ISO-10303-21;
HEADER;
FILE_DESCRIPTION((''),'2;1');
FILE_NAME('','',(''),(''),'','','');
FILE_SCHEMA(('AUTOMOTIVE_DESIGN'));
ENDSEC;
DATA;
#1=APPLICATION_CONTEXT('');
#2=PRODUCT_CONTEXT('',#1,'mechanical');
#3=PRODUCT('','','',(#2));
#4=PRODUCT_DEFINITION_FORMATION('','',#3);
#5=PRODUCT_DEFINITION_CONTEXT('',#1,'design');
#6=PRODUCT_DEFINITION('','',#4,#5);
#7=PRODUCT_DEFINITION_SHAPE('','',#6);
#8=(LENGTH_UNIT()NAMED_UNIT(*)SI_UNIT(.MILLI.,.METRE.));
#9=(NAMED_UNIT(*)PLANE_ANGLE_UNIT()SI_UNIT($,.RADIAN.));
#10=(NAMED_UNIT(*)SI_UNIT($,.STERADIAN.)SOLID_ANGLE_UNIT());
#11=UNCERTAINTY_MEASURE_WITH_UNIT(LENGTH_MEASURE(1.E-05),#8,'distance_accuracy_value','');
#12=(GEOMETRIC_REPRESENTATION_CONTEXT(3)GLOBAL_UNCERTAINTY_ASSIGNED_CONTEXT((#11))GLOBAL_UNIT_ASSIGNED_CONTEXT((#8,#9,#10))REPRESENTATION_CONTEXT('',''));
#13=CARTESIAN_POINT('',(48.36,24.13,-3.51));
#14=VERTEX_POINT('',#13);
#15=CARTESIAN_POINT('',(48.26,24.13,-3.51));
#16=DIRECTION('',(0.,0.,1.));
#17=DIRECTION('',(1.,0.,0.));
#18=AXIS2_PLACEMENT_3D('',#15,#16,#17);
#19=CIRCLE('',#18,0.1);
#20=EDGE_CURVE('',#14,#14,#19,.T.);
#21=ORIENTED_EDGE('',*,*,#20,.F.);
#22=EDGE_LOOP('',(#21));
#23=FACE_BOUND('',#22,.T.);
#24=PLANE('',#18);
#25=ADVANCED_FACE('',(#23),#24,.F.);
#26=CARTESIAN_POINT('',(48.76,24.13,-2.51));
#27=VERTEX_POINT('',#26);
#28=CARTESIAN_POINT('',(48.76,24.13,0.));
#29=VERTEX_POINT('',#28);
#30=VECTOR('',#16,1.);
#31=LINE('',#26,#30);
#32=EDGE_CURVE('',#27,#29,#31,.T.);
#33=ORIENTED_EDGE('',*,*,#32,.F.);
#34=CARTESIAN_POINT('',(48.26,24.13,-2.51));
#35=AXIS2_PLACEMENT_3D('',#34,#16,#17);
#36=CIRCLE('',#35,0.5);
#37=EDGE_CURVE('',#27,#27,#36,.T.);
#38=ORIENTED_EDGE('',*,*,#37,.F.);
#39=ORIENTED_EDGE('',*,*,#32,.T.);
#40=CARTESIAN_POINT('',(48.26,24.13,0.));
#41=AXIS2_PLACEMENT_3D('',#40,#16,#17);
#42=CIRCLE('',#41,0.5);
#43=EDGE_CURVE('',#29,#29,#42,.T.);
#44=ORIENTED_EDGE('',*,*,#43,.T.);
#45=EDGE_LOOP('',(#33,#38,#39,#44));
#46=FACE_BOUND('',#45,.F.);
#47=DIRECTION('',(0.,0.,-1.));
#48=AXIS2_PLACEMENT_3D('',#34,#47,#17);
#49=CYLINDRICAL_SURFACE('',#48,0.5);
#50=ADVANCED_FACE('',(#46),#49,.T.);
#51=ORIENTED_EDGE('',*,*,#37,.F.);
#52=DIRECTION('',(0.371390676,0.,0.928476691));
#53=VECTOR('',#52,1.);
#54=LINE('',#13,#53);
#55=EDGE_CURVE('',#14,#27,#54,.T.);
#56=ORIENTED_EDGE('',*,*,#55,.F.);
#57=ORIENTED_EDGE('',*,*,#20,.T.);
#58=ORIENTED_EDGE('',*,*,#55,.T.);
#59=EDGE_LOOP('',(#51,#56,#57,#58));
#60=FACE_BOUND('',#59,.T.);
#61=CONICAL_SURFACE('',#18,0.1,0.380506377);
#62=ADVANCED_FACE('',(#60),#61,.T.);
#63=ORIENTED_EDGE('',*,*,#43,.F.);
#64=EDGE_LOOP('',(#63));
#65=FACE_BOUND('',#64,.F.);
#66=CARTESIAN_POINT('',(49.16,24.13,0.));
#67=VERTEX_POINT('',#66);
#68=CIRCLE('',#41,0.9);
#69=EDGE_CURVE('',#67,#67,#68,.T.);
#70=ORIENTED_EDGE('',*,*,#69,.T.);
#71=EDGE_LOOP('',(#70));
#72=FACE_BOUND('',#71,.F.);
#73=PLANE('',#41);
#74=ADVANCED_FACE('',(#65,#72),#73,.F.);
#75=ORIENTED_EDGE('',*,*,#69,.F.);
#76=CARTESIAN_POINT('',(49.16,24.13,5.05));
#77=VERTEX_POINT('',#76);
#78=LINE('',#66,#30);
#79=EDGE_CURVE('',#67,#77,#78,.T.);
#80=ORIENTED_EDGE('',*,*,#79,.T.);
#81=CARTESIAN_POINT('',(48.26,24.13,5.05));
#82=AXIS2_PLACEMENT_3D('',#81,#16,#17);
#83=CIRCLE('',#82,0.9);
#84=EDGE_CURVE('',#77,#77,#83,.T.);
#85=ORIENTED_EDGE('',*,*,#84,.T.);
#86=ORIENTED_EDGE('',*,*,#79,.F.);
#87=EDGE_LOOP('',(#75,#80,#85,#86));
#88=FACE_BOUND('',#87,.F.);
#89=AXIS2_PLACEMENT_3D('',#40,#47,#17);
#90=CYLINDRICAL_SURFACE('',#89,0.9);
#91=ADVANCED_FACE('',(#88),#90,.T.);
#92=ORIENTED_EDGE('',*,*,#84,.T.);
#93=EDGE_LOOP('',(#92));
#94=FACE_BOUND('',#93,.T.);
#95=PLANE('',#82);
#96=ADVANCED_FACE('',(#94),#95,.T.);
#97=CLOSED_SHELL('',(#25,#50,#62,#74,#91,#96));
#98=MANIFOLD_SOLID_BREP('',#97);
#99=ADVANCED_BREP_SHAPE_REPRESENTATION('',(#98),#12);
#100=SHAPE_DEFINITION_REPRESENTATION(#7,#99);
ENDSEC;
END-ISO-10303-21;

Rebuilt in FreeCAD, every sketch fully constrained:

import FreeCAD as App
import Part
import Sketcher
from FreeCAD import Vector

doc = App.newDocument("Part")
body = doc.addObject("PartDesign::Body", "Body")

sketch1 = body.newObject("Sketcher::SketchObject", "Sketch")
sketch1.AttachmentSupport = (doc.getObject("XY_Plane"), [""])
sketch1.MapMode = "FlatFace"
sketch1.AttachmentOffset = App.Placement(Vector(0, 0, -2.51), App.Rotation())
sketch1.addGeometry(Part.Circle(Vector(2.5, 0, 0), Vector(0, 0, 1), 0.5), False)
sketch1.addConstraint(Sketcher.Constraint("PointOnObject", 0, 3, -1))
sketch1.addConstraint(Sketcher.Constraint("Diameter", 0, 1.0))
sketch1.addConstraint(Sketcher.Constraint("DistanceX", -1, 1, 0, 3, 2.54))
pad1 = body.newObject("PartDesign::Pad", "Pad")
pad1.Profile = sketch1
pad1.Length = 2.51
body2 = doc.addObject("PartDesign::Body", "Body001")

sketch2 = body2.newObject("Sketcher::SketchObject", "Sketch001")
sketch2.AttachmentSupport = (doc.getObject("XZ_Plane001"), [""])
sketch2.MapMode = "FlatFace"
sketch2.addGeometry(Part.LineSegment(Vector(2.54, -3.51, 0), Vector(2.64, -3.51, 0)), False)
sketch2.addGeometry(Part.LineSegment(Vector(2.64, -3.51, 0), Vector(3.04, -2.51, 0)), False)
sketch2.addGeometry(Part.LineSegment(Vector(3.04, -2.51, 0), Vector(2.54, -2.51, 0)), False)
sketch2.addGeometry(Part.LineSegment(Vector(2.54, -2.51, 0), Vector(2.54, -3.51, 0)), False)
sketch2.addGeometry(Part.LineSegment(Vector(2.54, -3.51, 0), Vector(2.54, -2.51, 0)), True)
sketch2.addConstraint(Sketcher.Constraint("Coincident", 0, 2, 1, 1))
sketch2.addConstraint(Sketcher.Constraint("Coincident", 1, 2, 2, 1))
sketch2.addConstraint(Sketcher.Constraint("Coincident", 2, 2, 3, 1))
sketch2.addConstraint(Sketcher.Constraint("Coincident", 3, 2, 0, 1))
sketch2.addConstraint(Sketcher.Constraint("Horizontal", 0))
sketch2.addConstraint(Sketcher.Constraint("Horizontal", 2))
sketch2.addConstraint(Sketcher.Constraint("Vertical", 3))
sketch2.addConstraint(Sketcher.Constraint("Vertical", 4))
sketch2.addConstraint(Sketcher.Constraint("Coincident", 4, 1, 3, 2))
sketch2.addConstraint(Sketcher.Constraint("Horizontal", 1, 2, 4, 2))
sketch2.addConstraint(Sketcher.Constraint("DistanceY", 3, 2, 3, 1, 1.0))
sketch2.addConstraint(Sketcher.Constraint("DistanceX", 0, 1, 0, 2, 0.1))
sketch2.addConstraint(Sketcher.Constraint("DistanceX", 2, 2, 2, 1, 0.5))
sketch2.addConstraint(Sketcher.Constraint("DistanceX", -1, 1, 0, 2, 2.64))
sketch2.addConstraint(Sketcher.Constraint("DistanceY", 0, 2, -1, 1, 3.51))
revolution = body2.newObject("PartDesign::Revolution", "Revolution")
revolution.Profile = sketch2
revolution.ReferenceAxis = (sketch2, ["Axis0"])
revolution.Angle = 360
body3 = doc.addObject("PartDesign::Body", "Body002")

sketch3 = body3.newObject("Sketcher::SketchObject", "Sketch002")
sketch3.AttachmentSupport = (doc.getObject("XY_Plane002"), [""])
sketch3.MapMode = "FlatFace"
sketch3.addGeometry(Part.Circle(Vector(2.5, 0, 0), Vector(0, 0, 1), 0.9), False)
sketch3.addConstraint(Sketcher.Constraint("PointOnObject", 0, 3, -1))
sketch3.addConstraint(Sketcher.Constraint("Diameter", 0, 1.8))
sketch3.addConstraint(Sketcher.Constraint("DistanceX", -1, 1, 0, 3, 2.54))
pad2 = body3.newObject("PartDesign::Pad", "Pad001")
pad2.Profile = sketch3
pad2.Length = 5.05
doc.recompute()

boolean = body3.newObject("PartDesign::Boolean", "Boolean")
boolean.Type = "Fuse"
boolean.addObjects([body])
doc.recompute()

boolean2 = body3.newObject("PartDesign::Boolean", "Boolean001")
boolean2.Type = "Fuse"
boolean2.addObjects([body2])
body4 = doc.addObject("PartDesign::Body", "Body003")
doc.recompute()

body3.Placement = App.Placement(Vector(45.72, 24.13, 0), App.Rotation(Vector(0, 0, 1), 0))
boolean3 = body4.newObject("PartDesign::Boolean", "Boolean002")
boolean3.Type = "Fuse"
boolean3.addObjects([body3])

doc.recompute()
